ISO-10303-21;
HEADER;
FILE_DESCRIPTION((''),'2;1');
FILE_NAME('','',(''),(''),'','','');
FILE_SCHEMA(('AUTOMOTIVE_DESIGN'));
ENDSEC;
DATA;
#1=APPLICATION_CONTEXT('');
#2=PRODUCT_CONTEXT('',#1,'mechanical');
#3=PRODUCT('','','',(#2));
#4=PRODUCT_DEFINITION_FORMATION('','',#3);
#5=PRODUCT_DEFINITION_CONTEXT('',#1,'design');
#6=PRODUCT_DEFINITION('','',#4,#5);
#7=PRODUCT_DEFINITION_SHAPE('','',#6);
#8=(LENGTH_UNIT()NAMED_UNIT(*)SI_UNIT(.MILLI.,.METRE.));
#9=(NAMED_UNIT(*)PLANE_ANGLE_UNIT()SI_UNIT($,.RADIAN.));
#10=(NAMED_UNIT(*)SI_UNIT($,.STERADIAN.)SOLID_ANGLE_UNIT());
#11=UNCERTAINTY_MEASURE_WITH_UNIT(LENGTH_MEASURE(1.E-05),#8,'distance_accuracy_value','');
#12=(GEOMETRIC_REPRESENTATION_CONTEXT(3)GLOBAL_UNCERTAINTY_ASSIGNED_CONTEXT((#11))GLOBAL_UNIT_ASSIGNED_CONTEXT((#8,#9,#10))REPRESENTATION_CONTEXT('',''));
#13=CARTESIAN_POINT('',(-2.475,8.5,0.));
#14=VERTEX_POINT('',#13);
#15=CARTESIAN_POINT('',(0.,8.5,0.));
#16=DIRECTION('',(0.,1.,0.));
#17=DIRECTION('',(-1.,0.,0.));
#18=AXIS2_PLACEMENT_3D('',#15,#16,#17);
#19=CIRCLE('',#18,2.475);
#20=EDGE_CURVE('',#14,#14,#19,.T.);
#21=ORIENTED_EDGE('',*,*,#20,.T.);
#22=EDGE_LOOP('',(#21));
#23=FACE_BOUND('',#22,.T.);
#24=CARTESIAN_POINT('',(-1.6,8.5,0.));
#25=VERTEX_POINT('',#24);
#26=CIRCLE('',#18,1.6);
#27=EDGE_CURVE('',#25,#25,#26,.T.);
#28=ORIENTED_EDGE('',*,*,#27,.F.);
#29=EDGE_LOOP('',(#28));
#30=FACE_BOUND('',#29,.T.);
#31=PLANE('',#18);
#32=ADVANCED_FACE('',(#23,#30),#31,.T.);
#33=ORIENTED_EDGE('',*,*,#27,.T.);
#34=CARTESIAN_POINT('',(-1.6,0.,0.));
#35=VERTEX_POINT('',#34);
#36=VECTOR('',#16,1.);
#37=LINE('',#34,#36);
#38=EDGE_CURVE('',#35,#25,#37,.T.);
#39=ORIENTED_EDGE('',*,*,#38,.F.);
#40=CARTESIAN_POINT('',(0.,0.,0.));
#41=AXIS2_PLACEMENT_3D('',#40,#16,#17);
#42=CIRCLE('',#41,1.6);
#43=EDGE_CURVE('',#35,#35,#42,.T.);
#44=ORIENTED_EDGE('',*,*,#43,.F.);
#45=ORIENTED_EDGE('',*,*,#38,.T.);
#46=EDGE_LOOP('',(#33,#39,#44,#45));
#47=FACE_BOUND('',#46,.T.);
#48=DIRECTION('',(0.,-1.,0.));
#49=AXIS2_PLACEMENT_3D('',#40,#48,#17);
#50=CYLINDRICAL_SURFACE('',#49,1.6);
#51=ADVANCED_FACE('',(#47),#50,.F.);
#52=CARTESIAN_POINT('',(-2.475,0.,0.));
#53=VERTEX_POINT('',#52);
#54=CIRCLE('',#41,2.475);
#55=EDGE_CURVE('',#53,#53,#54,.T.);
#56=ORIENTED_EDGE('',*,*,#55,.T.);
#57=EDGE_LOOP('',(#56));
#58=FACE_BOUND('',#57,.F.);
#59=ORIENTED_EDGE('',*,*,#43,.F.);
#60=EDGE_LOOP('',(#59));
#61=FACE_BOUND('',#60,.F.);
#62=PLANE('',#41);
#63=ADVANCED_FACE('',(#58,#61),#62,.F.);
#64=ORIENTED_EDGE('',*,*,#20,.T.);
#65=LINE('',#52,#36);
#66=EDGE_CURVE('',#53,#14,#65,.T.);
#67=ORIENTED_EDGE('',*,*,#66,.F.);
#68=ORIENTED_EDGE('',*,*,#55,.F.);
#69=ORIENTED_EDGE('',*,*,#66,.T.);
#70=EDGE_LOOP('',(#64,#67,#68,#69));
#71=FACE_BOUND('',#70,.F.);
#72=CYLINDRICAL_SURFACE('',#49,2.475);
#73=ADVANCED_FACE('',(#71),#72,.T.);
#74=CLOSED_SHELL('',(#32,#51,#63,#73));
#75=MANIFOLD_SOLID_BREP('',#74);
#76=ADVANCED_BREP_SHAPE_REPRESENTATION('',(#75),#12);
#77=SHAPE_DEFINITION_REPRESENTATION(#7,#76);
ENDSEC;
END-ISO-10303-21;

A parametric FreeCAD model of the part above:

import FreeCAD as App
import Part
import Sketcher

V = App.Vector

doc = App.newDocument("Part")
params = doc.addObject("Spreadsheet::Sheet", "Params")
for row, (alias, value) in enumerate([
    ("sketch1_diameter", "3.2 mm"),
    ("sketch1_diameter2", "4.95 mm"),
    ("pad1_length", "8.5 mm"),
], start=1):
    params.set(f"A{row}", alias)
    params.set(f"B{row}", "=" + value)
    params.setAlias(f"B{row}", alias)

body = doc.addObject("PartDesign::Body", "Body")

# Sketch on XZ plane
sketch1 = doc.addObject("Sketcher::SketchObject", "Sketch")
body.addObject(sketch1)
sketch1.AttachmentSupport = (doc.XZ_Plane, [""])
sketch1.MapMode = "FlatFace"
sketch1.addGeometry([
    Part.Circle(V(0, 0, 0), V(0, 0, 1), 2.5),
    Part.Circle(V(0, 0, 0), V(0, 0, 1), 1.6),
], False)
sketch1.addConstraint([
    Sketcher.Constraint("Coincident", 0, 3, -1, 1),
    Sketcher.Constraint("Coincident", 1, 3, -1, 1),
    Sketcher.Constraint("Diameter", 1, 3.2),
    Sketcher.Constraint("Diameter", 0, 4.95),
])
sketch1.setExpression("Constraints[2]", "Params.sketch1_diameter")
sketch1.setExpression("Constraints[3]", "Params.sketch1_diameter2")
pad1 = doc.addObject("PartDesign::Pad", "Pad")
body.addObject(pad1)
pad1.Profile = sketch1
pad1.setExpression("Length", "Params.pad1_length")
pad1.Reversed = True

doc.recompute()
